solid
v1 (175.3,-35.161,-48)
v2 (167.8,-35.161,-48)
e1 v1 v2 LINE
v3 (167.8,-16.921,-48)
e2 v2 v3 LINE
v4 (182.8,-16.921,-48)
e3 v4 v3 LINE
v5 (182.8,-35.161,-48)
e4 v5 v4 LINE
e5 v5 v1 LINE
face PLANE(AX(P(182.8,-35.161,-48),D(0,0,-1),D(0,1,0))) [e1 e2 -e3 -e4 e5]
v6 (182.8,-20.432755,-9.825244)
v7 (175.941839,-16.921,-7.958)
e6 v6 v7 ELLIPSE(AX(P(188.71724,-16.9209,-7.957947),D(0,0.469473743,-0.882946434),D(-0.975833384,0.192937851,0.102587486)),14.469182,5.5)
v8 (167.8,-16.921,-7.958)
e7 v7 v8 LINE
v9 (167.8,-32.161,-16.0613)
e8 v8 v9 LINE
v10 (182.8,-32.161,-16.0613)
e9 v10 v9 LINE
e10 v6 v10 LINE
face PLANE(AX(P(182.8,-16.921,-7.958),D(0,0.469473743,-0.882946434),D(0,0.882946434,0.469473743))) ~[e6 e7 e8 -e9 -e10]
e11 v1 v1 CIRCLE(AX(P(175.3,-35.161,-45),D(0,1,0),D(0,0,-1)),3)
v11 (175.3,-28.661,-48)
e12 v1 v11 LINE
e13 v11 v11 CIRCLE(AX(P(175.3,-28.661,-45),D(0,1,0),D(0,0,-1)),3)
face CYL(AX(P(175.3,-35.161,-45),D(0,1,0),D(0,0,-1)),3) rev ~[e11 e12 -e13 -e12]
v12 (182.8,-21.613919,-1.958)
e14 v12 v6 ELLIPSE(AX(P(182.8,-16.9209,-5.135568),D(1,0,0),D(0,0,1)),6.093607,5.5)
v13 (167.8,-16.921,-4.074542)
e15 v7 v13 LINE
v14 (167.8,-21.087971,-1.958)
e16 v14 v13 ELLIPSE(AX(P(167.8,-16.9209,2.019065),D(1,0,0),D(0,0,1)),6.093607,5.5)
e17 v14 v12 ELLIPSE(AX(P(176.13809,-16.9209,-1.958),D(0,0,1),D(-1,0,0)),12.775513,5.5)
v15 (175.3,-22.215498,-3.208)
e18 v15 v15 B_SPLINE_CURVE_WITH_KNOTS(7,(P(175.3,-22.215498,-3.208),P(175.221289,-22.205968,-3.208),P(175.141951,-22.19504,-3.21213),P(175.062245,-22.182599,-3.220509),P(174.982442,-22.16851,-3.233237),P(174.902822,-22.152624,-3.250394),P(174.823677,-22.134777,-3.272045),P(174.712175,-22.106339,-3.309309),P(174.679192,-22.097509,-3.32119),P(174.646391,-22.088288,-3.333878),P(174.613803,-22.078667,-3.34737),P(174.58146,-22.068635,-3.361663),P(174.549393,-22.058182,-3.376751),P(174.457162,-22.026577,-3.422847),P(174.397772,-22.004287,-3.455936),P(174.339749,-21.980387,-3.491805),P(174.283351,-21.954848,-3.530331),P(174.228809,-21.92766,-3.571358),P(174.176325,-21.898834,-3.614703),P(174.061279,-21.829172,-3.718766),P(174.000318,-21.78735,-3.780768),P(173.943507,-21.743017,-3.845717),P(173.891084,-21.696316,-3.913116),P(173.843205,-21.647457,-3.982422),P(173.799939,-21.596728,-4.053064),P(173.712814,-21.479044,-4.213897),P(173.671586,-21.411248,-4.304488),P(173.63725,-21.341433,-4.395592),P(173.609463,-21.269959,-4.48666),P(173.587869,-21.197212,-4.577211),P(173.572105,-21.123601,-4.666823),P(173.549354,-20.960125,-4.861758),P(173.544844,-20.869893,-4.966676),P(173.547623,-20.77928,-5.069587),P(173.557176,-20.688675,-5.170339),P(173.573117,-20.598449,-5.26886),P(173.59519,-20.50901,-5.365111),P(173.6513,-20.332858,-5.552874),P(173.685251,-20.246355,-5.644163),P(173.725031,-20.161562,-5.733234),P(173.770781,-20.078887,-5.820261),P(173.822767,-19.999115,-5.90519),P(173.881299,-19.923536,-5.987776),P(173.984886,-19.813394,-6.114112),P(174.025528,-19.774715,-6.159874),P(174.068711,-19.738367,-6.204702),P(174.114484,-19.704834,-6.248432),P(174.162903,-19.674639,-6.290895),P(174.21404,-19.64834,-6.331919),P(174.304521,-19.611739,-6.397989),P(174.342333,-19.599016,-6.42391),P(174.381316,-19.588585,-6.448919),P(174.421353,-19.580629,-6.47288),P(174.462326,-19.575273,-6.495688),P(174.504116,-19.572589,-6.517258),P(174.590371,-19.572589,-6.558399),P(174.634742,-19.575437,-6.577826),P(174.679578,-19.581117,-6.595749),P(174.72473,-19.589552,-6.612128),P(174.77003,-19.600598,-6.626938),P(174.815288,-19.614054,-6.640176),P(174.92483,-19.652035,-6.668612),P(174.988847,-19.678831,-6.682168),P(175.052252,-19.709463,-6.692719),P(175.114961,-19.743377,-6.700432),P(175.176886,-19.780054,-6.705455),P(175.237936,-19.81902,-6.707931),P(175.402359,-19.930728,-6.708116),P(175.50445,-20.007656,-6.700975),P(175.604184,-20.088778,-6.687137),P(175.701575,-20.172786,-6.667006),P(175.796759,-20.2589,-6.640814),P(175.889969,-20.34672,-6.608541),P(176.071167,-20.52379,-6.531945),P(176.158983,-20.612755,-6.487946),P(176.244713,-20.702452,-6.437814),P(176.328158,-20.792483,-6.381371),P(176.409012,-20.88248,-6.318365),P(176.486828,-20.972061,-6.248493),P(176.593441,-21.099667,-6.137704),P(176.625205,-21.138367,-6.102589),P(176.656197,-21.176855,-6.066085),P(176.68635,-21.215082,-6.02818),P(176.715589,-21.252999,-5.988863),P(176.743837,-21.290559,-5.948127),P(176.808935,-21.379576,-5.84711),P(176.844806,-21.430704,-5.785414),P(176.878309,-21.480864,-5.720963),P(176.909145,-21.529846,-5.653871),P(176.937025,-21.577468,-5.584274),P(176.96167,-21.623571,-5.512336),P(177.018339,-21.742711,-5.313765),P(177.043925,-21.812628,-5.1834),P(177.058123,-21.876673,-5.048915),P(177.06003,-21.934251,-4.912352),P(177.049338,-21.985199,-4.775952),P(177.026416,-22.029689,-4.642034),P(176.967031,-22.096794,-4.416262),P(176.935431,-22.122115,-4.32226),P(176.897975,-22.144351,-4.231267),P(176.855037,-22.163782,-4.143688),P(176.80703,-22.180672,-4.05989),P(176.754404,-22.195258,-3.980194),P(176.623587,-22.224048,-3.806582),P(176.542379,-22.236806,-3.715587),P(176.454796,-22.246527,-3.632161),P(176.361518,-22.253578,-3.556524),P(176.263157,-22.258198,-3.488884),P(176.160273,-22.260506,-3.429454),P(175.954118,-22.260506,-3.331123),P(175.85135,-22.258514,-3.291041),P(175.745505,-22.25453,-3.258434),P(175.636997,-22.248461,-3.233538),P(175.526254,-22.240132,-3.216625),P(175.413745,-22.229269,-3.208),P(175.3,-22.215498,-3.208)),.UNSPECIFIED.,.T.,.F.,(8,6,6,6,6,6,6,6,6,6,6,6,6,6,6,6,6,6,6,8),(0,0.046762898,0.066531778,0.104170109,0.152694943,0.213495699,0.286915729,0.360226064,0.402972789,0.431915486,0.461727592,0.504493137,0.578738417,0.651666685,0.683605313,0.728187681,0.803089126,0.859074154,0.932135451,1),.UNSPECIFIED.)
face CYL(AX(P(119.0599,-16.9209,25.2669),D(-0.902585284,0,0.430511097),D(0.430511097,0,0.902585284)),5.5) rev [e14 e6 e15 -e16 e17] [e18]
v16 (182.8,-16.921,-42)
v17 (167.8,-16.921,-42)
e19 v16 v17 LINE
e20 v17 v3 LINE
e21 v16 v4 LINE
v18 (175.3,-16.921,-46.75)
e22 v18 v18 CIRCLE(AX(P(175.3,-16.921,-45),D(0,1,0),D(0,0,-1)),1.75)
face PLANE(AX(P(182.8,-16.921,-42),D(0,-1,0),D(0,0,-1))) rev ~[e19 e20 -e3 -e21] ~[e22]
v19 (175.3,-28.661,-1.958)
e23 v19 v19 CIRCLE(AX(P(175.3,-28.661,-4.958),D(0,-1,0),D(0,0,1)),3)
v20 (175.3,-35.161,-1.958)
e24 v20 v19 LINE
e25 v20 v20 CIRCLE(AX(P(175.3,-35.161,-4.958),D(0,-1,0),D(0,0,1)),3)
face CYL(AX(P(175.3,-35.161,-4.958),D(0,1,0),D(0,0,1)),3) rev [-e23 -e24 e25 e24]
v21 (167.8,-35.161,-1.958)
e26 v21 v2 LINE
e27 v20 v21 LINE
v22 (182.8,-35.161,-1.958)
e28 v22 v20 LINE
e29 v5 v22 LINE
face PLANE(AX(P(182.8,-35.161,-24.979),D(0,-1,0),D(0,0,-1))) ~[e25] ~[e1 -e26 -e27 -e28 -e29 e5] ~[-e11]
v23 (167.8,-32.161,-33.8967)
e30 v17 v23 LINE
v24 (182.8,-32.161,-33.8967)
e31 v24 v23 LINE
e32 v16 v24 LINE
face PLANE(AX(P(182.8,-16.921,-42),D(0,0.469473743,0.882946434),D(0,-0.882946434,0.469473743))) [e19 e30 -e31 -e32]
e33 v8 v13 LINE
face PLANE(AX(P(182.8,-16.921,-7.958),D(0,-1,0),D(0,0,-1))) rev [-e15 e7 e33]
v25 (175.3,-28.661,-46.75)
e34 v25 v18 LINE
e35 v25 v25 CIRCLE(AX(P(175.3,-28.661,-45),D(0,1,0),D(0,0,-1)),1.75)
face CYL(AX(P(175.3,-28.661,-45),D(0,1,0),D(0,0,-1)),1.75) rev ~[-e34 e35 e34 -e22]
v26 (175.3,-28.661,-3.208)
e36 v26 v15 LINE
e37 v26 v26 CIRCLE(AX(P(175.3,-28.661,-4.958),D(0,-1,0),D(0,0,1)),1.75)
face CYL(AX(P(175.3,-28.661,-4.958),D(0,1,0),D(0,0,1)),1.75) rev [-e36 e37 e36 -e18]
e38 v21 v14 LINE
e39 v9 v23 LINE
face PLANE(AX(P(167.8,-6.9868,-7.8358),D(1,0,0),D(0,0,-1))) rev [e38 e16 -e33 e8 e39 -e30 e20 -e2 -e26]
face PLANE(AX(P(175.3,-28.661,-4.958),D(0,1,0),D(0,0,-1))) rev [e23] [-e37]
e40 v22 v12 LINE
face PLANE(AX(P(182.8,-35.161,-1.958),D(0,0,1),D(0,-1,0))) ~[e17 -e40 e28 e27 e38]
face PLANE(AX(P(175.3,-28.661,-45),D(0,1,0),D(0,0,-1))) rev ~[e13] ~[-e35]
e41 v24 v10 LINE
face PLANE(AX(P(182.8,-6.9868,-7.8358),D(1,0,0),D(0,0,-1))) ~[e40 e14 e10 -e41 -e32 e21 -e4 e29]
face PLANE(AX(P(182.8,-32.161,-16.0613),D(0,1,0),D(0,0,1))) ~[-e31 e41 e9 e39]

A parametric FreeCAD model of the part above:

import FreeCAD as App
import Part
import Sketcher

V = App.Vector
Q = App.Units.Quantity


def add_polygon(sketch, points):
    """Adds a closed chain of lines whose ends are joined by coincident constraints."""
    first, n = sketch.GeometryCount, len(points)
    for a, b in zip(points, points[1:] + points[:1]):
        sketch.addGeometry(Part.LineSegment(App.Vector(*a, 0), App.Vector(*b, 0)), False)
    for i in range(n):
        sketch.addConstraint(Sketcher.Constraint("Coincident", first + i, 2, first + (i + 1) % n, 1))

doc = App.newDocument("Part")
params = doc.addObject("Spreadsheet::Sheet", "Params")
for row, (alias, value) in enumerate([
    ("sketch1_width", "3 mm"),
    ("sketch1_height", "6 mm"),
    ("sketch1_width2", "18.24 mm"),
    ("pad1_length", "15 mm"),
    ("sketch2_diameter", "3.5 mm"),
    ("hole_diameter", "3.5 mm"),
    ("hole_cbore_diameter", "6 mm"),
    ("hole_cbore_depth", "6.5 mm"),
    ("sketch3_diameter", "11 mm"),
], start=1):
    params.set(f"A{row}", alias)
    params.set(f"B{row}", "=" + value)
    params.setAlias(f"B{row}", alias)

body = doc.addObject("PartDesign::Body", "Body")

# Sketch on YZ plane
sketch1 = body.newObject("Sketcher::SketchObject", "Sketch")
sketch1.AttachmentSupport = (doc.getObject("YZ_Plane"), [""])
sketch1.MapMode = "FlatFace"
sketch1.AttachmentOffset = App.Placement(V(0, 0, 182.8), App.Rotation())
add_polygon(sketch1, [(-35.2, -48), (-16.9, -48), (-16.9, -42), (-32.2, -33.9), (-32.2, -25), (-35.2, -25)])  # lines 0-5
sketch1.addConstraint([
    Sketcher.Constraint("Horizontal", 0),
    Sketcher.Constraint("Vertical", 1),
    Sketcher.Constraint("Vertical", 3),
    Sketcher.Constraint("Horizontal", 4),
    Sketcher.Constraint("Vertical", 5),
    Sketcher.Constraint("DistanceX", 4, 2, 4, 1, Q("3 mm")),
    Sketcher.Constraint("DistanceY", 1, 1, 1, 2, Q("6 mm")),
    Sketcher.Constraint("Angle", 2, Q("151.9999 deg")),
    Sketcher.Constraint("DistanceY", 0, 2, -1, 1, Q("48 mm")),
    Sketcher.Constraint("DistanceX", 0, 1, 0, 2, Q("18.24 mm")),
    Sketcher.Constraint("DistanceY", 5, 2, 5, 1, Q("23.021 mm")),
    Sketcher.Constraint("DistanceX", 0, 2, -1, 1, Q("16.921 mm")),
])
sketch1.setExpression("Constraints[11]", "Params.sketch1_width")
sketch1.setExpression("Constraints[12]", "Params.sketch1_height")
sketch1.setExpression("Constraints[15]", "Params.sketch1_width2")
pad1 = body.newObject("PartDesign::Pad", "Pad")
pad1.Profile = sketch1
pad1.setExpression("Length", "Params.pad1_length")
pad1.Reversed = True

# Sketch on XZ plane
sketch2 = body.newObject("Sketcher::SketchObject", "Sketch001")
sketch2.AttachmentSupport = (doc.getObject("XZ_Plane"), [""])
sketch2.MapMode = "FlatFace"
sketch2.AttachmentOffset = App.Placement(V(0, 0, 35.161), App.Rotation())
sketch2.addGeometry(Part.Circle(V(175.3, -45, 0), V(0, 0, 1), 1.8), False)
sketch2.addConstraint([
    Sketcher.Constraint("Diameter", 0, Q("3.5 mm")),
    Sketcher.Constraint("DistanceY", 0, 3, -1, 1, Q("45 mm")),
    Sketcher.Constraint("DistanceX", -1, 1, 0, 3, Q("175.3 mm")),
])
sketch2.setExpression("Constraints[0]", "Params.sketch2_diameter")
doc.recompute()
hole = body.newObject("PartDesign::Hole", "Hole")
hole.Profile = sketch2
hole.ThreadType = "None"
hole.setExpression("Diameter", "Params.hole_diameter")
hole.DepthType = "ThroughAll"
hole.HoleCutType = "Counterbore"
hole.setExpression("HoleCutDiameter", "Params.hole_cbore_diameter")
hole.setExpression("HoleCutDepth", "Params.hole_cbore_depth")
doc.recompute()

datumplane = body.newObject("PartDesign::Plane", "DatumPlane")
datumplane.AttachmentSupport = (doc.getObject("XY_Plane"), [""])
datumplane.MapMode = "FlatFace"
datumplane.AttachmentOffset = App.Placement(V(0, 0, -24.979), App.Rotation())
mirrored = body.newObject("PartDesign::Mirrored", "Mirrored")
mirrored.Originals = [pad1, hole]
mirrored.MirrorPlane = (datumplane, [""])
body.Tip = mirrored

# Sketch on an angled plane
sketch3 = body.newObject("Sketcher::SketchObject", "Sketch002")
sketch3.Placement = App.Placement(V(119.0599, -16.9209, 25.2669), App.Rotation(V(0.430511097, 0, 0.902585284), V(0, -1, 0), V(0.902585284, 0, -0.430511097), "ZXY"))
sketch3.addGeometry(Part.Circle(V(0, 0, 0), V(0, 0, 1), 6), False)
sketch3.addConstraint([
    Sketcher.Constraint("Coincident", 0, 3, -1, 1),
    Sketcher.Constraint("Diameter", 0, Q("11 mm")),
])
sketch3.setExpression("Constraints[1]", "Params.sketch3_diameter")
pocket1 = body.newObject("PartDesign::Pocket", "Pocket")
pocket1.Profile = sketch3
pocket1.Type = "ThroughAll"
pocket1.Reversed = True

doc.recompute()
